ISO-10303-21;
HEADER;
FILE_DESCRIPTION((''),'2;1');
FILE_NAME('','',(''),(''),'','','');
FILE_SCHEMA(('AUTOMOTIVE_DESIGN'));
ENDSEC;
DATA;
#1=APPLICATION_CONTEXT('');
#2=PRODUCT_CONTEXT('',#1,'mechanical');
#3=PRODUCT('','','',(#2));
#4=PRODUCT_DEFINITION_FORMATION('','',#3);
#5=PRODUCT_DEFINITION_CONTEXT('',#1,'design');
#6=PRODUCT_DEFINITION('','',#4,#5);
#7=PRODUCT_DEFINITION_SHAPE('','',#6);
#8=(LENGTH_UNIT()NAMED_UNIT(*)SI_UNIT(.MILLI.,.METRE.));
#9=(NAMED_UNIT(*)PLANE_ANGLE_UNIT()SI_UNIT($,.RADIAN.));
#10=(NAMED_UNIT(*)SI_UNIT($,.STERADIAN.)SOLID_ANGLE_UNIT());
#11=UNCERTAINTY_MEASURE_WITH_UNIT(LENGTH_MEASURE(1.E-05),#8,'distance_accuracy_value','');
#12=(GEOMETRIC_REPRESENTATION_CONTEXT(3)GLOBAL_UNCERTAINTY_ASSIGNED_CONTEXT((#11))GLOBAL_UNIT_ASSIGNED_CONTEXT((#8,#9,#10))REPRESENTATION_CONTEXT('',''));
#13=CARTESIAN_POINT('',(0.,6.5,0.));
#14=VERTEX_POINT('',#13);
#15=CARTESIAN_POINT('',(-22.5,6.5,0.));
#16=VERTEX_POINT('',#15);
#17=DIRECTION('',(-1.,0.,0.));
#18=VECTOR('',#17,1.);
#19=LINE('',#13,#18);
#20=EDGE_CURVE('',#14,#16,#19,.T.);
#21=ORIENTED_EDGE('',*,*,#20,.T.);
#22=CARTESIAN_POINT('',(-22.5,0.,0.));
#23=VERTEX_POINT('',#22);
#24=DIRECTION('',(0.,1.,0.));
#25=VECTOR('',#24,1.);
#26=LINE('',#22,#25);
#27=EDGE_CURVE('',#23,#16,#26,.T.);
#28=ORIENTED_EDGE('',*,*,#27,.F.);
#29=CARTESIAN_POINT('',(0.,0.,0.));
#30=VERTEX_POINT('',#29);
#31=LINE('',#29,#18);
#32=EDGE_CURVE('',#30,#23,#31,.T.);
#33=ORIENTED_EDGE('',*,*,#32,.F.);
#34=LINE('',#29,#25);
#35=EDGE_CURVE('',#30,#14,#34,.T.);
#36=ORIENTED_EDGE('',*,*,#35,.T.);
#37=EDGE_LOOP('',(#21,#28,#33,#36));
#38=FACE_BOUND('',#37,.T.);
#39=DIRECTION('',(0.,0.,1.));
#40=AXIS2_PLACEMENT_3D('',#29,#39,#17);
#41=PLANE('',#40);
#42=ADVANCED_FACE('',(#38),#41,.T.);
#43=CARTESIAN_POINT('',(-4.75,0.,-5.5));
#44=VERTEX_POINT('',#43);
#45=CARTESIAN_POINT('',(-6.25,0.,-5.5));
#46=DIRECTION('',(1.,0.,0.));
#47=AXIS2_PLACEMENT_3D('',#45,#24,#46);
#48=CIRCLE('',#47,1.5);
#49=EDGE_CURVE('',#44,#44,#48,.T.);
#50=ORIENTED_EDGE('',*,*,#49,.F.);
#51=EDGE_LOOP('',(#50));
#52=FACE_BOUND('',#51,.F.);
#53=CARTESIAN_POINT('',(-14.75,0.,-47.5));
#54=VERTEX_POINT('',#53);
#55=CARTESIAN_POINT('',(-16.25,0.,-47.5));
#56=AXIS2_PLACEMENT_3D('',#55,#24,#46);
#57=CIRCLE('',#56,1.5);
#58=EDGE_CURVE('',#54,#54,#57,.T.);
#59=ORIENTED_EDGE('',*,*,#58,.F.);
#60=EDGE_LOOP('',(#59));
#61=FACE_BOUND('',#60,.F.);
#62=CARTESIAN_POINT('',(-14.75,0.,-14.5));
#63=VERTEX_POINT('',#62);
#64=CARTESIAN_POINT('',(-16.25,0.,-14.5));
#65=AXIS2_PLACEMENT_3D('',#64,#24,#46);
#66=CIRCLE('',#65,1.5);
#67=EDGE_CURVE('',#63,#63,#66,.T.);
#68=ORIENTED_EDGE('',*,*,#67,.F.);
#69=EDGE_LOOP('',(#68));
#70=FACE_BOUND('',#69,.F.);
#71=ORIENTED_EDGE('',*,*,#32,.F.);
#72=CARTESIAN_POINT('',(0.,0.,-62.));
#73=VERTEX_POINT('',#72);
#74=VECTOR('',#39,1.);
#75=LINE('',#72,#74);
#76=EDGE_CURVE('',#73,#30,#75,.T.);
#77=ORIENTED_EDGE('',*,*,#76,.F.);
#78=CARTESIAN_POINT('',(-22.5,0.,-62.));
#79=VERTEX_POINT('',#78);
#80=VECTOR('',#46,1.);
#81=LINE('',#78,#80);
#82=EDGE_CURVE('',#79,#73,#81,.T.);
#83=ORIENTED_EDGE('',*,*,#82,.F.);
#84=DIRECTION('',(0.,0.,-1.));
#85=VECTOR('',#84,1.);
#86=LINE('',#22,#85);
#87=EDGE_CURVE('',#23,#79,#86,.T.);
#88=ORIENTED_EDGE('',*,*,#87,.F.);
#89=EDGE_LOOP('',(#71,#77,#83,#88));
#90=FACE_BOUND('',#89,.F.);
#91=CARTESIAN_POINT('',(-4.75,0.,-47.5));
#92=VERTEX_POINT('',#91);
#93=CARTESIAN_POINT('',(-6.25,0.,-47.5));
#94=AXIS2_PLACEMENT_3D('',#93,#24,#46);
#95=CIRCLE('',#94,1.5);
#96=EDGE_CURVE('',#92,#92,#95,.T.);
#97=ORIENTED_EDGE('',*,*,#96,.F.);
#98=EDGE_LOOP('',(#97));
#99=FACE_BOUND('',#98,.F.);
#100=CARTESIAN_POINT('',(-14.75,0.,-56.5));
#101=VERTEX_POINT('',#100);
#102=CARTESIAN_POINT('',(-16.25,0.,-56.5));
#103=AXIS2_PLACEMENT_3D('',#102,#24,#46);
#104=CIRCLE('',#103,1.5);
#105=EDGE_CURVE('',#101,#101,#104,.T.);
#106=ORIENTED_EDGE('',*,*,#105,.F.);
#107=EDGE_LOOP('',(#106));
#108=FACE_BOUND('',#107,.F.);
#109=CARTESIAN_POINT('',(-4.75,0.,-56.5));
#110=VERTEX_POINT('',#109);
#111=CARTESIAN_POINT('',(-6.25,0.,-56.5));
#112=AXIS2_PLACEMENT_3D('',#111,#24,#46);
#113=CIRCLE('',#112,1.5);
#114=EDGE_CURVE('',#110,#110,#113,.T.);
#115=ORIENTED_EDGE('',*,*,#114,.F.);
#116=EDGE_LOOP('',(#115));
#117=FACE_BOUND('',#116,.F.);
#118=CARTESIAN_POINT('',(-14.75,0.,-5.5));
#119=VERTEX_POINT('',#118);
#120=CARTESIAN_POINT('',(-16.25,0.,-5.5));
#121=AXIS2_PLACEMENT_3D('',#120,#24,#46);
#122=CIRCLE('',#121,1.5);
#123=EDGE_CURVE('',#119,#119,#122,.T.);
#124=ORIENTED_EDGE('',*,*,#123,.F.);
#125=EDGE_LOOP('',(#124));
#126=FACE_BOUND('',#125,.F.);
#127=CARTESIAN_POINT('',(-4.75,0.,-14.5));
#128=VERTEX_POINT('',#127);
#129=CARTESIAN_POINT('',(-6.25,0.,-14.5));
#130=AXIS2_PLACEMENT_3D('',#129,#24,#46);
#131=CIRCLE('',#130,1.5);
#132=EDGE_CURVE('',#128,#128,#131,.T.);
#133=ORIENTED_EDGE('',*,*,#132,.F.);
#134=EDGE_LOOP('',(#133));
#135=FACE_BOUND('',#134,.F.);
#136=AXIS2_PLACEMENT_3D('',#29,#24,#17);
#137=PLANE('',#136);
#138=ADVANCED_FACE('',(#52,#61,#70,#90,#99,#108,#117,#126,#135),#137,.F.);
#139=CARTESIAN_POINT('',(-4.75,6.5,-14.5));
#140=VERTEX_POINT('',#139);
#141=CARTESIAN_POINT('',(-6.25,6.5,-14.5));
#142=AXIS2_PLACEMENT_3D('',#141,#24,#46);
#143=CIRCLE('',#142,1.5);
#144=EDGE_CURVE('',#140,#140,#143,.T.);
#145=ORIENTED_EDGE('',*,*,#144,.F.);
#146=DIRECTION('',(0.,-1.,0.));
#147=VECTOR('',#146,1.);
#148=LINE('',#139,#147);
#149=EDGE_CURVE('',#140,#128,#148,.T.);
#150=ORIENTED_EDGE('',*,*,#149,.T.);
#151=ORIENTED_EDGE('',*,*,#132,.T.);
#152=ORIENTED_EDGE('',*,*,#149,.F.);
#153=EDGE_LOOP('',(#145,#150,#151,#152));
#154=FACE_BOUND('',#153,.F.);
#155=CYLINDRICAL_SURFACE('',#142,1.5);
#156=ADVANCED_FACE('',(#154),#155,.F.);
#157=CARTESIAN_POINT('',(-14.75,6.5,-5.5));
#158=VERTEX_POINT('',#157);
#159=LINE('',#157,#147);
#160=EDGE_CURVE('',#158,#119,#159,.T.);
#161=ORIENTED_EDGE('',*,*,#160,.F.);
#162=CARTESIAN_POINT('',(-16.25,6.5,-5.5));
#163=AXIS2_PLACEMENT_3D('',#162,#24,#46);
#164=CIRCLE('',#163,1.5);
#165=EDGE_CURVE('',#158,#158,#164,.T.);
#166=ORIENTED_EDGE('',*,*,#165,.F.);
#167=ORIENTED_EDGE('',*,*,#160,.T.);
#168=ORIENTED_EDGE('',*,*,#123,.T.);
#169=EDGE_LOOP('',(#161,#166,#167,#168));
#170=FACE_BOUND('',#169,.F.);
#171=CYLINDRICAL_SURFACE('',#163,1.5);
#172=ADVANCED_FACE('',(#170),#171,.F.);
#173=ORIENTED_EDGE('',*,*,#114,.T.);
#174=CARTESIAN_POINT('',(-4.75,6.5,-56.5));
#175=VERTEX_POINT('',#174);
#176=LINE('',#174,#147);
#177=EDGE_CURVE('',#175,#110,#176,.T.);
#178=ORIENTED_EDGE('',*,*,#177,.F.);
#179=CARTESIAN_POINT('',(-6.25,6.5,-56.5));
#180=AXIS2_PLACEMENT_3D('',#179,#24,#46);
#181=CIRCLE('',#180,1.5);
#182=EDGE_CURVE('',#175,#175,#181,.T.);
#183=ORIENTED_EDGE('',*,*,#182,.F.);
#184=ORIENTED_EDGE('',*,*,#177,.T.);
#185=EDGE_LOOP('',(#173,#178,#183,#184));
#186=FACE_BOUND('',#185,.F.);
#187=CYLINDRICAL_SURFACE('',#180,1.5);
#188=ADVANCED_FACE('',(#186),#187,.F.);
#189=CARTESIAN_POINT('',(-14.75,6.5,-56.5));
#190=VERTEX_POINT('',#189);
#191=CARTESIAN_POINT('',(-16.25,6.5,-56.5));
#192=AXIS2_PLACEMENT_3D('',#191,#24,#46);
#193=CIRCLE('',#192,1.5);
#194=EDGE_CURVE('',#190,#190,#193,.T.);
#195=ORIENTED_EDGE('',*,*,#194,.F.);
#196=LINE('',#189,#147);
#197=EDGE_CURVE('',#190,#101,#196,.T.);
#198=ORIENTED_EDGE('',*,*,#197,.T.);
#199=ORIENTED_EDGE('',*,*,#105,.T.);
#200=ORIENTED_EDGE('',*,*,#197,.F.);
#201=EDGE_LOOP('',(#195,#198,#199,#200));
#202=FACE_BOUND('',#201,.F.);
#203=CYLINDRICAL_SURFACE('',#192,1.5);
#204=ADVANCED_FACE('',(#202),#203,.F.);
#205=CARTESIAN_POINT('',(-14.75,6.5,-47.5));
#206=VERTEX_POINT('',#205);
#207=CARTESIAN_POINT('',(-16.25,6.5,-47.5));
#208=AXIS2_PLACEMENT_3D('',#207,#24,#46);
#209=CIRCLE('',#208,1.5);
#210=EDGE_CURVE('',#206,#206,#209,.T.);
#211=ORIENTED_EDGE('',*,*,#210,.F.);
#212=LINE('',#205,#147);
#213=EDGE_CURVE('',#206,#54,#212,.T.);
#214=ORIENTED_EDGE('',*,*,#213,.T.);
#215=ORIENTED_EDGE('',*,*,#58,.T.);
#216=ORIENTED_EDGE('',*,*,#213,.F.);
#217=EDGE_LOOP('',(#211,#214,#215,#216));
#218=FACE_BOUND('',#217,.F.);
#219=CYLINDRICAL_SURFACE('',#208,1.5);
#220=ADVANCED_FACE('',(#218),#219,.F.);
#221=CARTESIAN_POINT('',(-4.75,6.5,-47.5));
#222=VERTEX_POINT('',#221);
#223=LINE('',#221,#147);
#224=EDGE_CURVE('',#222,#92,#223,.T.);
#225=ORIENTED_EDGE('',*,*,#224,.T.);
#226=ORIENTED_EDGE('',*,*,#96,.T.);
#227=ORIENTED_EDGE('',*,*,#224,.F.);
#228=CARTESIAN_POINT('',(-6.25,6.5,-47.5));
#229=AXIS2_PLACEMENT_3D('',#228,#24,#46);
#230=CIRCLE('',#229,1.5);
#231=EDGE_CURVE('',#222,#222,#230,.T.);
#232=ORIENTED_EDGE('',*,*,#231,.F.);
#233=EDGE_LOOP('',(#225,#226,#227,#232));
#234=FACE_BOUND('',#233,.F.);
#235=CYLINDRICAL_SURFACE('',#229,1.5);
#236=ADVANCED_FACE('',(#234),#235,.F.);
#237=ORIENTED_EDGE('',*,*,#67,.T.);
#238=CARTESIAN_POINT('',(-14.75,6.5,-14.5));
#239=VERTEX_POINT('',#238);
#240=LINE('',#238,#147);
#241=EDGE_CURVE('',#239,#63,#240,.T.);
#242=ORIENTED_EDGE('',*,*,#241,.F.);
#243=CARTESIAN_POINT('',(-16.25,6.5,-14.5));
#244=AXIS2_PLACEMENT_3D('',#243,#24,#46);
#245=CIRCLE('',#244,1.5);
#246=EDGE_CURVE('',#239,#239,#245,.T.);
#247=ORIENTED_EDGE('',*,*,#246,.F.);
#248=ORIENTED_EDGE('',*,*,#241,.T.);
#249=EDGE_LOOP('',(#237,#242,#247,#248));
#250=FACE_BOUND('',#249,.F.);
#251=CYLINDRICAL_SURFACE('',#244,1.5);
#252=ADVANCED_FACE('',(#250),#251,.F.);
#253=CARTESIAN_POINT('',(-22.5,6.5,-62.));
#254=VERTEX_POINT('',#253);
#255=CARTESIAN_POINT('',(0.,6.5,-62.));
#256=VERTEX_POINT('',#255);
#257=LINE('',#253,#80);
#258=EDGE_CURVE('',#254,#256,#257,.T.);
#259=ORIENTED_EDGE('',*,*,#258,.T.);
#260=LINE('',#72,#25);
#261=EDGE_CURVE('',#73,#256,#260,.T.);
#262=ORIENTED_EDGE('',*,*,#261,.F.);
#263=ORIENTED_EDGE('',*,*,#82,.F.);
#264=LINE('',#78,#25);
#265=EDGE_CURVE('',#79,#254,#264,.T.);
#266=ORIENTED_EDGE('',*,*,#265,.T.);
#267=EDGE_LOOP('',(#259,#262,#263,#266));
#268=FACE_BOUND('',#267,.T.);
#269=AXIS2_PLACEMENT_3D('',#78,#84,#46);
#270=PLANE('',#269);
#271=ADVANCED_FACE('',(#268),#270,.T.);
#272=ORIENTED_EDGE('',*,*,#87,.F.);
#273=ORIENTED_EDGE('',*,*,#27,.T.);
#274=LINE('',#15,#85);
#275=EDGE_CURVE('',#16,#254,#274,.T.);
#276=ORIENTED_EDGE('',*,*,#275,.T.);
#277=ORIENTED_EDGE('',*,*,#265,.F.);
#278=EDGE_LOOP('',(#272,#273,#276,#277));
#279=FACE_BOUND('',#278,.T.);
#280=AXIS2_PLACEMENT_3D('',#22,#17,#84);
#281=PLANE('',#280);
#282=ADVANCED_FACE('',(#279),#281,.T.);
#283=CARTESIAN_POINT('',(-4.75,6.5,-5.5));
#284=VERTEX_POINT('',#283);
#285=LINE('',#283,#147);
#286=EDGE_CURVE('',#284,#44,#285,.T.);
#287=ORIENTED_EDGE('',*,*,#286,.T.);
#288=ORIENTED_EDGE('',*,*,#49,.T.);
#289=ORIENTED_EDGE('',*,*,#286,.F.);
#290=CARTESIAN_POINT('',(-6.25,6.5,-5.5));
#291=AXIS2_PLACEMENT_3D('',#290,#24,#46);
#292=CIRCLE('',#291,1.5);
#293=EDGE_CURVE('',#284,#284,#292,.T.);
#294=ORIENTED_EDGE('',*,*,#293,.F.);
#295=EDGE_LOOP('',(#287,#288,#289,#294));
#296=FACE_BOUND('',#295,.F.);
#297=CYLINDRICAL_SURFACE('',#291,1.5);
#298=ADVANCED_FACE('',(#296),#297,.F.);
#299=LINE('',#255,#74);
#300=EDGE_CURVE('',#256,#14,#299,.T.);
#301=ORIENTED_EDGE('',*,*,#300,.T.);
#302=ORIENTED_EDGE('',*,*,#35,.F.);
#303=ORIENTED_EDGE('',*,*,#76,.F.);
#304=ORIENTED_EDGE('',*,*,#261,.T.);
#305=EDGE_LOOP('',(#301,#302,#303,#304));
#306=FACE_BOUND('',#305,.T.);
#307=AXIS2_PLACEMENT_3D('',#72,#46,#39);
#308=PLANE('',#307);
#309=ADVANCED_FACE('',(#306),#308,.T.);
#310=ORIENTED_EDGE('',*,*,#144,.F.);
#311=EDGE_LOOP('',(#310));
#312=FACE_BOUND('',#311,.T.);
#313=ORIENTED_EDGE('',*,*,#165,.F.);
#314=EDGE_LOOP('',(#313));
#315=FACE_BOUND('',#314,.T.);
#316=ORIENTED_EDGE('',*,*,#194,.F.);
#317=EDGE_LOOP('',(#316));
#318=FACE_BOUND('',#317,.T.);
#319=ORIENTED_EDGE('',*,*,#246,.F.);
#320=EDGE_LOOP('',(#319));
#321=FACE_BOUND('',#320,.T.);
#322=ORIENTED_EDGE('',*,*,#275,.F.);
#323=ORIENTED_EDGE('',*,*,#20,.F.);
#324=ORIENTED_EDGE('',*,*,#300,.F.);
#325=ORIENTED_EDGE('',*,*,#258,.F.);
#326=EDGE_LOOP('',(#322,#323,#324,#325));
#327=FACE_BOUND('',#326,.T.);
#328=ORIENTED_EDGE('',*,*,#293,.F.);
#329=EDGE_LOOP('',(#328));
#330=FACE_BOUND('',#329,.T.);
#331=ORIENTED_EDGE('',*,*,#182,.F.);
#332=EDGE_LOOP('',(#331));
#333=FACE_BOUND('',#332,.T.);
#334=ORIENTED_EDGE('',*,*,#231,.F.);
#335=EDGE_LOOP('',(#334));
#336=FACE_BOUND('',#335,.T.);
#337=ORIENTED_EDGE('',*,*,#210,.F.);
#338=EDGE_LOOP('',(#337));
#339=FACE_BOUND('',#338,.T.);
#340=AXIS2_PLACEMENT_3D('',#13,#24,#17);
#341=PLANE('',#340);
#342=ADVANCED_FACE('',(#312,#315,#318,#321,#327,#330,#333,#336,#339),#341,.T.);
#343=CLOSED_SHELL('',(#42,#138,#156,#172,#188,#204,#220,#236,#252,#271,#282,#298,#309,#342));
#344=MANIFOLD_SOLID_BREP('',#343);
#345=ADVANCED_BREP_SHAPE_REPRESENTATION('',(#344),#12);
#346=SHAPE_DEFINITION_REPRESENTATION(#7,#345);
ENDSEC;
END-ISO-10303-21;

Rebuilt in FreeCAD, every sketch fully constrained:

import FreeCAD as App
import Part
import Sketcher
from FreeCAD import Vector

doc = App.newDocument("Part")
body = doc.addObject("PartDesign::Body", "Body")

# Sketch on XZ plane
sketch1 = doc.addObject("Sketcher::SketchObject", "Sketch")
body.addObject(sketch1)
sketch1.AttachmentSupport = (doc.XZ_Plane, [""])
sketch1.MapMode = "FlatFace"
sketch1.addGeometry(Part.LineSegment(Vector(-22, 0, 0), Vector(0, 0, 0)), False)
sketch1.addGeometry(Part.LineSegment(Vector(0, 0, 0), Vector(0, -62, 0)), False)
sketch1.addGeometry(Part.LineSegment(Vector(0, -62, 0), Vector(-22, -62, 0)), False)
sketch1.addGeometry(Part.LineSegment(Vector(-22, -62, 0), Vector(-22, 0, 0)), False)
sketch1.addConstraint(Sketcher.Constraint("Coincident", 0, 2, 1, 1))
sketch1.addConstraint(Sketcher.Constraint("Coincident", 1, 2, 2, 1))
sketch1.addConstraint(Sketcher.Constraint("Coincident", 2, 2, 3, 1))
sketch1.addConstraint(Sketcher.Constraint("Coincident", 3, 2, 0, 1))
sketch1.addConstraint(Sketcher.Constraint("Horizontal", 0))
sketch1.addConstraint(Sketcher.Constraint("Vertical", 1))
sketch1.addConstraint(Sketcher.Constraint("Horizontal", 2))
sketch1.addConstraint(Sketcher.Constraint("Vertical", 3))
sketch1.addConstraint(Sketcher.Constraint("Coincident", 0, 2, -1, 1))
sketch1.addConstraint(Sketcher.Constraint("DistanceY", 1, 2, 1, 1, 62.0))
sketch1.addConstraint(Sketcher.Constraint("DistanceX", 0, 1, 0, 2, 22.5))
pad1 = doc.addObject("PartDesign::Pad", "Pad")
body.addObject(pad1)
pad1.Profile = sketch1
pad1.Length = 6.5
pad1.Reversed = True

# Sketch on XZ plane
sketch2 = doc.addObject("Sketcher::SketchObject", "Sketch001")
body.addObject(sketch2)
sketch2.AttachmentSupport = (doc.XZ_Plane, [""])
sketch2.MapMode = "FlatFace"
sketch2.AttachmentOffset = App.Placement(Vector(0, 0, -6.5), App.Rotation())
sketch2.addGeometry(Part.Circle(Vector(-16.2, -56.5, 0), Vector(0, 0, 1), 1.5), False)
sketch2.addGeometry(Part.Circle(Vector(-16.2, -47.5, 0), Vector(0, 0, 1), 1.5), False)
sketch2.addGeometry(Part.Circle(Vector(-6.2, -56.5, 0), Vector(0, 0, 1), 1.5), False)
sketch2.addGeometry(Part.Circle(Vector(-6.2, -47.5, 0), Vector(0, 0, 1), 1.5), False)
sketch2.addGeometry(Part.Circle(Vector(-16.2, -14.5, 0), Vector(0, 0, 1), 1.5), False)
sketch2.addGeometry(Part.Circle(Vector(-16.2, -5.5, 0), Vector(0, 0, 1), 1.5), False)
sketch2.addGeometry(Part.Circle(Vector(-6.2, -14.5, 0), Vector(0, 0, 1), 1.5), False)
sketch2.addGeometry(Part.Circle(Vector(-6.2, -5.5, 0), Vector(0, 0, 1), 1.5), False)
sketch2.addConstraint(Sketcher.Constraint("Equal", 0, 1))
sketch2.addConstraint(Sketcher.Constraint("Equal", 1, 2))
sketch2.addConstraint(Sketcher.Constraint("Equal", 2, 3))
sketch2.addConstraint(Sketcher.Constraint("Equal", 3, 4))
sketch2.addConstraint(Sketcher.Constraint("Equal", 4, 5))
sketch2.addConstraint(Sketcher.Constraint("Equal", 5, 6))
sketch2.addConstraint(Sketcher.Constraint("Equal", 6, 7))
sketch2.addConstraint(Sketcher.Constraint("Horizontal", 0, 3, 2, 3))
sketch2.addConstraint(Sketcher.Constraint("Horizontal", 1, 3, 3, 3))
sketch2.addConstraint(Sketcher.Constraint("Horizontal", 4, 3, 6, 3))
sketch2.addConstraint(Sketcher.Constraint("Horizontal", 5, 3, 7, 3))
sketch2.addConstraint(Sketcher.Constraint("Vertical", 0, 3, 1, 3))
sketch2.addConstraint(Sketcher.Constraint("Vertical", 2, 3, 3, 3))
sketch2.addConstraint(Sketcher.Constraint("Vertical", 1, 3, 4, 3))
sketch2.addConstraint(Sketcher.Constraint("Vertical", 4, 3, 5, 3))
sketch2.addConstraint(Sketcher.Constraint("Vertical", 3, 3, 6, 3))
sketch2.addConstraint(Sketcher.Constraint("Vertical", 6, 3, 7, 3))
sketch2.addConstraint(Sketcher.Constraint("Diameter", 0, 3.0))
sketch2.addConstraint(Sketcher.Constraint("DistanceY", 0, 3, 1, 3, 9.0))
sketch2.addConstraint(Sketcher.Constraint("DistanceX", 0, 3, 2, 3, 10.0))
sketch2.addConstraint(Sketcher.Constraint("DistanceY", 0, 3, 4, 3, 42.0))
sketch2.addConstraint(Sketcher.Constraint("DistanceY", 4, 3, 5, 3, 9.0))
sketch2.addConstraint(Sketcher.Constraint("DistanceY", 0, 3, -1, 1, 56.5))
sketch2.addConstraint(Sketcher.Constraint("DistanceX", 0, 3, -1, 1, 16.25))
pocket1 = doc.addObject("PartDesign::Pocket", "Pocket")
body.addObject(pocket1)
pocket1.Profile = sketch2
pocket1.Type = "ThroughAll"
pocket1.Reversed = True

doc.recompute()
